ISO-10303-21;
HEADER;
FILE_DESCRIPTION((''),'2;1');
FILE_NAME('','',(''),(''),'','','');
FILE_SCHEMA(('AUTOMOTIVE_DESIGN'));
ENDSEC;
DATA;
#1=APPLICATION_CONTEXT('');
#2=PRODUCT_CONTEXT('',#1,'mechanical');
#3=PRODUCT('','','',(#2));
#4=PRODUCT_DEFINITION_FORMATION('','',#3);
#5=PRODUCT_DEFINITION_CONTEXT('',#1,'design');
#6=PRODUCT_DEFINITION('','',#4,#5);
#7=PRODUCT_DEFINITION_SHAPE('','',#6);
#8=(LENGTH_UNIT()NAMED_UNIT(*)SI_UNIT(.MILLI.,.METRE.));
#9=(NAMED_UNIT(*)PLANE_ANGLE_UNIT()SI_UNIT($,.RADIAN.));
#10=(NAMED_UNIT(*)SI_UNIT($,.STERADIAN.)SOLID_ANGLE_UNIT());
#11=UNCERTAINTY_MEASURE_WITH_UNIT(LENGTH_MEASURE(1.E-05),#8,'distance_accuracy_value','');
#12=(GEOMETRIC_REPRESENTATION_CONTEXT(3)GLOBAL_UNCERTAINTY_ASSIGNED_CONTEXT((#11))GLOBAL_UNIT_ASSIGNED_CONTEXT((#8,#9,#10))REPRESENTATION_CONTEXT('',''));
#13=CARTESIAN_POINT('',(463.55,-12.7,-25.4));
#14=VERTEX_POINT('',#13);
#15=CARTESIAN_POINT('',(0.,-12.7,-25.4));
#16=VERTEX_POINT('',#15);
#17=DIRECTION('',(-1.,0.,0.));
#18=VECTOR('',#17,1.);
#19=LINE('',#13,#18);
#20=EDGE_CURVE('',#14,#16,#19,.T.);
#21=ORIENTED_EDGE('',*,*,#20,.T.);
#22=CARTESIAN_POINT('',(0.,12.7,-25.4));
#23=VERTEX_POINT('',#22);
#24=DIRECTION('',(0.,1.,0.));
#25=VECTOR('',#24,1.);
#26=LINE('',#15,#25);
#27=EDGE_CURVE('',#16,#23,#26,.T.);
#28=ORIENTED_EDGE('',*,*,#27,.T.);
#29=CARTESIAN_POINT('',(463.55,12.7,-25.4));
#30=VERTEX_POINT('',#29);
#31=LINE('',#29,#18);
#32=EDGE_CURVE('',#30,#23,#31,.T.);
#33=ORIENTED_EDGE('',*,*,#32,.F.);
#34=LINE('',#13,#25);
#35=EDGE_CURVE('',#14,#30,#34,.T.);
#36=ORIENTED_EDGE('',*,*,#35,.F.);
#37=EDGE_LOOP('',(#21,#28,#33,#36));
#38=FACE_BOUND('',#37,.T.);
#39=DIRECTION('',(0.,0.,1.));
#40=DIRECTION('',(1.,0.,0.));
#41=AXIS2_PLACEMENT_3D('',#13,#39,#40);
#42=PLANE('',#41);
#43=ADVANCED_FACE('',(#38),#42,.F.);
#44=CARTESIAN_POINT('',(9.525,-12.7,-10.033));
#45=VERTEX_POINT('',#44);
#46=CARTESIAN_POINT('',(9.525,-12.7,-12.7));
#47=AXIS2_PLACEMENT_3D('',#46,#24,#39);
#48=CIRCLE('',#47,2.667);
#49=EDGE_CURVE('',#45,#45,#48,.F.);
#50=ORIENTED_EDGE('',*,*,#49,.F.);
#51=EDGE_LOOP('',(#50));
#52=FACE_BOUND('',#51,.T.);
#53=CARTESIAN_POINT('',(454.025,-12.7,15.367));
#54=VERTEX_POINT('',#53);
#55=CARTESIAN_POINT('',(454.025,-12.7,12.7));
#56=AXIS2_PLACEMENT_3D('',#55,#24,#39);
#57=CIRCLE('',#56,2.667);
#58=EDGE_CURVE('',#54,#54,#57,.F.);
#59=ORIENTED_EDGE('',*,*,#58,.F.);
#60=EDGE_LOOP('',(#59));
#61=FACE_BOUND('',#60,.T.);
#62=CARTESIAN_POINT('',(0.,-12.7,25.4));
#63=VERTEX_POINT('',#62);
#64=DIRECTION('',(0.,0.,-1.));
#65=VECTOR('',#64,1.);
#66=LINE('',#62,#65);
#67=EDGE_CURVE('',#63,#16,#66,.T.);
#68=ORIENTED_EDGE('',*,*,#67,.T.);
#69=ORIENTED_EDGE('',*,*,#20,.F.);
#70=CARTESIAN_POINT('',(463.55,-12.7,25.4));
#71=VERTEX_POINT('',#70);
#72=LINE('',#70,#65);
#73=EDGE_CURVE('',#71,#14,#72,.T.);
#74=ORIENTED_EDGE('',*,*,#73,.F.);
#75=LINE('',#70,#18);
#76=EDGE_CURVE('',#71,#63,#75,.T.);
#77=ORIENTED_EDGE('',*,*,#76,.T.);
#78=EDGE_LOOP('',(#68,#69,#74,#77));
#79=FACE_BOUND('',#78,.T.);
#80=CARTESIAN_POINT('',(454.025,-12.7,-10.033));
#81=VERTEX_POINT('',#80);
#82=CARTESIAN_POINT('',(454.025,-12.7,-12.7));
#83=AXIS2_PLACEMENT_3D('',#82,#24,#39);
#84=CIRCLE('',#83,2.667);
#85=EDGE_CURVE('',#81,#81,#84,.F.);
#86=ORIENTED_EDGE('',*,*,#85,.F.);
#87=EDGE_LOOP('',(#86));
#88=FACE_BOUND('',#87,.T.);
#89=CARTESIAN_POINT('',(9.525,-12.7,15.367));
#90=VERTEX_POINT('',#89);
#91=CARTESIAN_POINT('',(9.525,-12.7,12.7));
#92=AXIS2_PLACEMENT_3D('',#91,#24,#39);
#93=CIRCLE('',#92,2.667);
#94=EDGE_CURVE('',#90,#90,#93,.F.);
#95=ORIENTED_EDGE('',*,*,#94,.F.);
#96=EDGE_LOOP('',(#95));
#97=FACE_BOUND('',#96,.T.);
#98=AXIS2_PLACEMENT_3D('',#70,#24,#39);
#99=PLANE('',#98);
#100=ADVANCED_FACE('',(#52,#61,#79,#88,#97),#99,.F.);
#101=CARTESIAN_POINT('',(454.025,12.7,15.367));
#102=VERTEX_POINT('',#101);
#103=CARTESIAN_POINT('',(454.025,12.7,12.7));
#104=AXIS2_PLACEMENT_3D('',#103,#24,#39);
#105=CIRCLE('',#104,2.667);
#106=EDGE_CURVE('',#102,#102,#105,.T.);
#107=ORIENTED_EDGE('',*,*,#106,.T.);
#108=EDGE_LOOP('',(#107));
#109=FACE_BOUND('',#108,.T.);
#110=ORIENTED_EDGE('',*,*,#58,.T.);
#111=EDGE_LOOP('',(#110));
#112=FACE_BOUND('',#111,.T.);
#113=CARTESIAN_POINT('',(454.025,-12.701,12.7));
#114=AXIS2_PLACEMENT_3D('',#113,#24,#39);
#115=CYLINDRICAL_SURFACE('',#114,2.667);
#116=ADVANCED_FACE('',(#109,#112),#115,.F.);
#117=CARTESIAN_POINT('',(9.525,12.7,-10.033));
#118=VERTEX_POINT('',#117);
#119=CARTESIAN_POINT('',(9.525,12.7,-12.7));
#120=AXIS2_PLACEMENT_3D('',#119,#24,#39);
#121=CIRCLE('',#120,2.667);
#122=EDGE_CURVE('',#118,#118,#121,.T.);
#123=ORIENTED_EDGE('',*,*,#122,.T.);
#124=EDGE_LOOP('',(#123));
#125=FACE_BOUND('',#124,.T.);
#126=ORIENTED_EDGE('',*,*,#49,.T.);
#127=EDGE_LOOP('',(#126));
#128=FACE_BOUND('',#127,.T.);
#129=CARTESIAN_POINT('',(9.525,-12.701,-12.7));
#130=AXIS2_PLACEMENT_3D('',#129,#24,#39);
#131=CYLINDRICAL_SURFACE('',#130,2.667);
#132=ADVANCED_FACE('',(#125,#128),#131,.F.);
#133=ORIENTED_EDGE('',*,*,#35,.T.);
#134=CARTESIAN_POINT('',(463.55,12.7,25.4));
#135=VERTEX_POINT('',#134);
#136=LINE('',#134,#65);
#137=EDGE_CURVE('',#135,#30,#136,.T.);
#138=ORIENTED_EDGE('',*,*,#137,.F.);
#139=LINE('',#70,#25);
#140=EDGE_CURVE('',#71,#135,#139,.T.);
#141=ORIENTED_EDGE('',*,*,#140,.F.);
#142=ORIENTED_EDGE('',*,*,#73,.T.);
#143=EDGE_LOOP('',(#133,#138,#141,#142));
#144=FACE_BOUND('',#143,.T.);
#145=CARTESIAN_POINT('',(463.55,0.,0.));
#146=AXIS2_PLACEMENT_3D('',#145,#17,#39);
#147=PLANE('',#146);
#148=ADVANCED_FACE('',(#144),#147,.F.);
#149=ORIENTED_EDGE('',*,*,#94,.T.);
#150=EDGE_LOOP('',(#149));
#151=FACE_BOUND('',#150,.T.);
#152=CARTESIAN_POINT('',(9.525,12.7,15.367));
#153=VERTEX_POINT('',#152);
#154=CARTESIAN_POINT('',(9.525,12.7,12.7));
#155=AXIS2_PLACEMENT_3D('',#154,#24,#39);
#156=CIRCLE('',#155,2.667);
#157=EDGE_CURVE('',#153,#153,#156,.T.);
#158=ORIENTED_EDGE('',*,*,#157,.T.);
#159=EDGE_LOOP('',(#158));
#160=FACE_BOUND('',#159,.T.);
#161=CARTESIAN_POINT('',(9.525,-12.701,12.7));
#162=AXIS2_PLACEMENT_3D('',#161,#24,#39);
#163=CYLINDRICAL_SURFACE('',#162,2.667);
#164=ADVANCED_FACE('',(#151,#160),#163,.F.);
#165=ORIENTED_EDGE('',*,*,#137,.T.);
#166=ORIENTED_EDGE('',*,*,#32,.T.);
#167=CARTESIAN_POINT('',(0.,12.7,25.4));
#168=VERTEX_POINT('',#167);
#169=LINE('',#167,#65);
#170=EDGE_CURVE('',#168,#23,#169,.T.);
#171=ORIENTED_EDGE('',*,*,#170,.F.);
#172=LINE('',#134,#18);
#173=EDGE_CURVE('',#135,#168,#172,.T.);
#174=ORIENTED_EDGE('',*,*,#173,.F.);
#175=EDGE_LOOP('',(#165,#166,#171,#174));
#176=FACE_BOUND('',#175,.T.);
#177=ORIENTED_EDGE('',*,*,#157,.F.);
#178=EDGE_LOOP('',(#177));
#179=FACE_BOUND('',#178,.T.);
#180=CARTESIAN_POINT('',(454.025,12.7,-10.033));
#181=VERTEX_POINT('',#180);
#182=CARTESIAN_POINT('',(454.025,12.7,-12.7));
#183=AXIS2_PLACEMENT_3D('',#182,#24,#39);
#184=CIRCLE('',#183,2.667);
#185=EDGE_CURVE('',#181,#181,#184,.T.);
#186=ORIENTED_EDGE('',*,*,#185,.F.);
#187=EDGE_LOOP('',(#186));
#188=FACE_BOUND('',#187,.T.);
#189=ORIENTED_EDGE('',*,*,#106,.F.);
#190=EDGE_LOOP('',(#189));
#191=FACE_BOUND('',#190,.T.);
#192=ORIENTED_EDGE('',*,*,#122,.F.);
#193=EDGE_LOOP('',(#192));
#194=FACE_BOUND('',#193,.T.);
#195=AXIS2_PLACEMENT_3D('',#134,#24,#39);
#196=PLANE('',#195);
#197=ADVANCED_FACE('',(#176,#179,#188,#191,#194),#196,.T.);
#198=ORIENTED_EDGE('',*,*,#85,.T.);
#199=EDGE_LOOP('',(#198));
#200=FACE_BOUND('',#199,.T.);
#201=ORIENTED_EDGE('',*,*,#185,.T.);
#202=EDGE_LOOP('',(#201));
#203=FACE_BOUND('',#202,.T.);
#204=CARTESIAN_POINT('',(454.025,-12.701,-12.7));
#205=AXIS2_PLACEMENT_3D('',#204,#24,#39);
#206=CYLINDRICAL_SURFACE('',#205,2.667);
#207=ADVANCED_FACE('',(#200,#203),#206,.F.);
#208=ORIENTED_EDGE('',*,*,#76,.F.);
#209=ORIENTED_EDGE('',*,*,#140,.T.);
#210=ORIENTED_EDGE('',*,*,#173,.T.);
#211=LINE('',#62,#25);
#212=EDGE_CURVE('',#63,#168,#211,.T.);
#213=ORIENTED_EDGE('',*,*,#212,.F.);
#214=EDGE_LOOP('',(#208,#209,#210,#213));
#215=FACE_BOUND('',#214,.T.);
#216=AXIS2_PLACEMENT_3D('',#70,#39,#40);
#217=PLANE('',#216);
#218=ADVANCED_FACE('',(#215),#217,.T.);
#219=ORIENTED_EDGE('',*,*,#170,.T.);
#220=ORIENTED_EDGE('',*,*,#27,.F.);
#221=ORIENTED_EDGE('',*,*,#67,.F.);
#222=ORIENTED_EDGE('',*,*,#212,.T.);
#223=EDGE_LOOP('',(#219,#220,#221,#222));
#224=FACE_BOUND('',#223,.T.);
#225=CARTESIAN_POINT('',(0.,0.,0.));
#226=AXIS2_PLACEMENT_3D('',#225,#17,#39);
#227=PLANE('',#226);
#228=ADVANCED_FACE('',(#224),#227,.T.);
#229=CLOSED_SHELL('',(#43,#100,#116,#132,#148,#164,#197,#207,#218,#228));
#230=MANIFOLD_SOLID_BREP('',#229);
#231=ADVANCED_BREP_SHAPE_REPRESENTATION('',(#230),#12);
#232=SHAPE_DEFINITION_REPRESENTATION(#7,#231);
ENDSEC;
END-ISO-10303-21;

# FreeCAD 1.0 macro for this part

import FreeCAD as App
import Part
import Sketcher
Q = App.Units.Quantity


def add_polygon(sketch, points):
    """Adds a closed chain of lines whose ends are joined by coincident constraints."""
    first, n = sketch.GeometryCount, len(points)
    for a, b in zip(points, points[1:] + points[:1]):
        sketch.addGeometry(Part.LineSegment(App.Vector(*a, 0), App.Vector(*b, 0)), False)
    for i in range(n):
        sketch.addConstraint(Sketcher.Constraint("Coincident", first + i, 2, first + (i + 1) % n, 1))

doc = App.newDocument("Part")
params = doc.addObject("Spreadsheet::Sheet", "Params")
for row, (alias, value) in enumerate([
    ("sketch1_width", "1 in"),
    ("sketch1_height", "2 in"),
    ("pad1_length", "18.25 in"),
    ("sketch2_diameter", "0.21 in"),
    ("sketch3_diameter", "0.21 in"),
    ("sketch4_diameter", "0.21 in"),
    ("sketch5_diameter", "0.21 in"),
], start=1):
    params.set(f"A{row}", alias)
    params.set(f"B{row}", "=" + value)
    params.setAlias(f"B{row}", alias)

body = doc.addObject("PartDesign::Body", "Body")

# Sketch on YZ plane
sketch1 = body.newObject("Sketcher::SketchObject", "Sketch")
sketch1.AttachmentSupport = (doc.getObject("YZ_Plane"), [""])
sketch1.MapMode = "FlatFace"
add_polygon(sketch1, [(13, 25), (-13, 25), (-13, -25), (13, -25)])  # lines 0-3
sketch1.addConstraint(Sketcher.Constraint("Horizontal", 0))
sketch1.addConstraint(Sketcher.Constraint("Vertical", 1))
sketch1.addConstraint(Sketcher.Constraint("Horizontal", 2))
sketch1.addConstraint(Sketcher.Constraint("Vertical", 3))
sketch1.addConstraint(Sketcher.Constraint("Symmetric", 0, 2, 2, 2, -1, 1))
sketch1.addConstraint(Sketcher.Constraint("DistanceX", 0, 2, 0, 1, Q("1 in")))
sketch1.addConstraint(Sketcher.Constraint("DistanceY", 1, 2, 1, 1, Q("2 in")))
sketch1.setExpression("Constraints[9]", "Params.sketch1_width")
sketch1.setExpression("Constraints[10]", "Params.sketch1_height")
pad1 = body.newObject("PartDesign::Pad", "Pad")
pad1.Profile = sketch1
pad1.setExpression("Length", "Params.pad1_length")

# Sketch on XZ plane
sketch2 = body.newObject("Sketcher::SketchObject", "Sketch001")
sketch2.AttachmentSupport = (doc.getObject("XZ_Plane"), [""])
sketch2.MapMode = "FlatFace"
sketch2.AttachmentOffset = App.Placement(App.Vector(0, 0, -0.5 * 25.4), App.Rotation())
sketch2.addGeometry(Part.Circle(App.Vector(9.5, -12.7, 0), App.Vector(0, 0, 1), 2.7), False)
sketch2.addConstraint(Sketcher.Constraint("Diameter", 0, Q("0.21 in")))
sketch2.addConstraint(Sketcher.Constraint("DistanceY", 0, 3, -1, 1, Q("0.5 in")))
sketch2.addConstraint(Sketcher.Constraint("DistanceX", -1, 1, 0, 3, Q("0.375 in")))
sketch2.setExpression("Constraints[0]", "Params.sketch2_diameter")
pocket1 = body.newObject("PartDesign::Pocket", "Pocket")
pocket1.Profile = sketch2
pocket1.Type = "UpToFirst"
pocket1.Reversed = True

# Sketch on XZ plane
sketch3 = body.newObject("Sketcher::SketchObject", "Sketch002")
sketch3.AttachmentSupport = (doc.getObject("XZ_Plane"), [""])
sketch3.MapMode = "FlatFace"
sketch3.AttachmentOffset = App.Placement(App.Vector(0, 0, -0.5 * 25.4), App.Rotation())
sketch3.addGeometry(Part.Circle(App.Vector(9.5, 12.7, 0), App.Vector(0, 0, 1), 2.7), False)
sketch3.addConstraint(Sketcher.Constraint("Diameter", 0, Q("0.21 in")))
sketch3.addConstraint(Sketcher.Constraint("DistanceY", -1, 1, 0, 3, Q("0.5 in")))
sketch3.addConstraint(Sketcher.Constraint("DistanceX", -1, 1, 0, 3, Q("0.375 in")))
sketch3.setExpression("Constraints[0]", "Params.sketch3_diameter")
pocket2 = body.newObject("PartDesign::Pocket", "Pocket001")
pocket2.Profile = sketch3
pocket2.Type = "UpToFirst"
pocket2.Reversed = True

# Sketch on XZ plane
sketch4 = body.newObject("Sketcher::SketchObject", "Sketch003")
sketch4.AttachmentSupport = (doc.getObject("XZ_Plane"), [""])
sketch4.MapMode = "FlatFace"
sketch4.AttachmentOffset = App.Placement(App.Vector(0, 0, -0.5 * 25.4), App.Rotation())
sketch4.addGeometry(Part.Circle(App.Vector(454, 12.7, 0), App.Vector(0, 0, 1), 2.7), False)
sketch4.addConstraint(Sketcher.Constraint("Diameter", 0, Q("0.21 in")))
sketch4.addConstraint(Sketcher.Constraint("DistanceY", -1, 1, 0, 3, Q("0.5 in")))
sketch4.addConstraint(Sketcher.Constraint("DistanceX", -1, 1, 0, 3, Q("17.875 in")))
sketch4.setExpression("Constraints[0]", "Params.sketch4_diameter")
pocket3 = body.newObject("PartDesign::Pocket", "Pocket002")
pocket3.Profile = sketch4
pocket3.Type = "UpToFirst"
pocket3.Reversed = True

# Sketch on XZ plane
sketch5 = body.newObject("Sketcher::SketchObject", "Sketch004")
sketch5.AttachmentSupport = (doc.getObject("XZ_Plane"), [""])
sketch5.MapMode = "FlatFace"
sketch5.AttachmentOffset = App.Placement(App.Vector(0, 0, -0.5 * 25.4), App.Rotation())
sketch5.addGeometry(Part.Circle(App.Vector(454, -12.7, 0), App.Vector(0, 0, 1), 2.7), False)
sketch5.addConstraint(Sketcher.Constraint("Diameter", 0, Q("0.21 in")))
sketch5.addConstraint(Sketcher.Constraint("DistanceY", 0, 3, -1, 1, Q("0.5 in")))
sketch5.addConstraint(Sketcher.Constraint("DistanceX", -1, 1, 0, 3, Q("17.875 in")))
sketch5.setExpression("Constraints[0]", "Params.sketch5_diameter")
pocket4 = body.newObject("PartDesign::Pocket", "Pocket003")
pocket4.Profile = sketch5
pocket4.Type = "UpToFirst"
pocket4.Reversed = True

doc.recompute()
